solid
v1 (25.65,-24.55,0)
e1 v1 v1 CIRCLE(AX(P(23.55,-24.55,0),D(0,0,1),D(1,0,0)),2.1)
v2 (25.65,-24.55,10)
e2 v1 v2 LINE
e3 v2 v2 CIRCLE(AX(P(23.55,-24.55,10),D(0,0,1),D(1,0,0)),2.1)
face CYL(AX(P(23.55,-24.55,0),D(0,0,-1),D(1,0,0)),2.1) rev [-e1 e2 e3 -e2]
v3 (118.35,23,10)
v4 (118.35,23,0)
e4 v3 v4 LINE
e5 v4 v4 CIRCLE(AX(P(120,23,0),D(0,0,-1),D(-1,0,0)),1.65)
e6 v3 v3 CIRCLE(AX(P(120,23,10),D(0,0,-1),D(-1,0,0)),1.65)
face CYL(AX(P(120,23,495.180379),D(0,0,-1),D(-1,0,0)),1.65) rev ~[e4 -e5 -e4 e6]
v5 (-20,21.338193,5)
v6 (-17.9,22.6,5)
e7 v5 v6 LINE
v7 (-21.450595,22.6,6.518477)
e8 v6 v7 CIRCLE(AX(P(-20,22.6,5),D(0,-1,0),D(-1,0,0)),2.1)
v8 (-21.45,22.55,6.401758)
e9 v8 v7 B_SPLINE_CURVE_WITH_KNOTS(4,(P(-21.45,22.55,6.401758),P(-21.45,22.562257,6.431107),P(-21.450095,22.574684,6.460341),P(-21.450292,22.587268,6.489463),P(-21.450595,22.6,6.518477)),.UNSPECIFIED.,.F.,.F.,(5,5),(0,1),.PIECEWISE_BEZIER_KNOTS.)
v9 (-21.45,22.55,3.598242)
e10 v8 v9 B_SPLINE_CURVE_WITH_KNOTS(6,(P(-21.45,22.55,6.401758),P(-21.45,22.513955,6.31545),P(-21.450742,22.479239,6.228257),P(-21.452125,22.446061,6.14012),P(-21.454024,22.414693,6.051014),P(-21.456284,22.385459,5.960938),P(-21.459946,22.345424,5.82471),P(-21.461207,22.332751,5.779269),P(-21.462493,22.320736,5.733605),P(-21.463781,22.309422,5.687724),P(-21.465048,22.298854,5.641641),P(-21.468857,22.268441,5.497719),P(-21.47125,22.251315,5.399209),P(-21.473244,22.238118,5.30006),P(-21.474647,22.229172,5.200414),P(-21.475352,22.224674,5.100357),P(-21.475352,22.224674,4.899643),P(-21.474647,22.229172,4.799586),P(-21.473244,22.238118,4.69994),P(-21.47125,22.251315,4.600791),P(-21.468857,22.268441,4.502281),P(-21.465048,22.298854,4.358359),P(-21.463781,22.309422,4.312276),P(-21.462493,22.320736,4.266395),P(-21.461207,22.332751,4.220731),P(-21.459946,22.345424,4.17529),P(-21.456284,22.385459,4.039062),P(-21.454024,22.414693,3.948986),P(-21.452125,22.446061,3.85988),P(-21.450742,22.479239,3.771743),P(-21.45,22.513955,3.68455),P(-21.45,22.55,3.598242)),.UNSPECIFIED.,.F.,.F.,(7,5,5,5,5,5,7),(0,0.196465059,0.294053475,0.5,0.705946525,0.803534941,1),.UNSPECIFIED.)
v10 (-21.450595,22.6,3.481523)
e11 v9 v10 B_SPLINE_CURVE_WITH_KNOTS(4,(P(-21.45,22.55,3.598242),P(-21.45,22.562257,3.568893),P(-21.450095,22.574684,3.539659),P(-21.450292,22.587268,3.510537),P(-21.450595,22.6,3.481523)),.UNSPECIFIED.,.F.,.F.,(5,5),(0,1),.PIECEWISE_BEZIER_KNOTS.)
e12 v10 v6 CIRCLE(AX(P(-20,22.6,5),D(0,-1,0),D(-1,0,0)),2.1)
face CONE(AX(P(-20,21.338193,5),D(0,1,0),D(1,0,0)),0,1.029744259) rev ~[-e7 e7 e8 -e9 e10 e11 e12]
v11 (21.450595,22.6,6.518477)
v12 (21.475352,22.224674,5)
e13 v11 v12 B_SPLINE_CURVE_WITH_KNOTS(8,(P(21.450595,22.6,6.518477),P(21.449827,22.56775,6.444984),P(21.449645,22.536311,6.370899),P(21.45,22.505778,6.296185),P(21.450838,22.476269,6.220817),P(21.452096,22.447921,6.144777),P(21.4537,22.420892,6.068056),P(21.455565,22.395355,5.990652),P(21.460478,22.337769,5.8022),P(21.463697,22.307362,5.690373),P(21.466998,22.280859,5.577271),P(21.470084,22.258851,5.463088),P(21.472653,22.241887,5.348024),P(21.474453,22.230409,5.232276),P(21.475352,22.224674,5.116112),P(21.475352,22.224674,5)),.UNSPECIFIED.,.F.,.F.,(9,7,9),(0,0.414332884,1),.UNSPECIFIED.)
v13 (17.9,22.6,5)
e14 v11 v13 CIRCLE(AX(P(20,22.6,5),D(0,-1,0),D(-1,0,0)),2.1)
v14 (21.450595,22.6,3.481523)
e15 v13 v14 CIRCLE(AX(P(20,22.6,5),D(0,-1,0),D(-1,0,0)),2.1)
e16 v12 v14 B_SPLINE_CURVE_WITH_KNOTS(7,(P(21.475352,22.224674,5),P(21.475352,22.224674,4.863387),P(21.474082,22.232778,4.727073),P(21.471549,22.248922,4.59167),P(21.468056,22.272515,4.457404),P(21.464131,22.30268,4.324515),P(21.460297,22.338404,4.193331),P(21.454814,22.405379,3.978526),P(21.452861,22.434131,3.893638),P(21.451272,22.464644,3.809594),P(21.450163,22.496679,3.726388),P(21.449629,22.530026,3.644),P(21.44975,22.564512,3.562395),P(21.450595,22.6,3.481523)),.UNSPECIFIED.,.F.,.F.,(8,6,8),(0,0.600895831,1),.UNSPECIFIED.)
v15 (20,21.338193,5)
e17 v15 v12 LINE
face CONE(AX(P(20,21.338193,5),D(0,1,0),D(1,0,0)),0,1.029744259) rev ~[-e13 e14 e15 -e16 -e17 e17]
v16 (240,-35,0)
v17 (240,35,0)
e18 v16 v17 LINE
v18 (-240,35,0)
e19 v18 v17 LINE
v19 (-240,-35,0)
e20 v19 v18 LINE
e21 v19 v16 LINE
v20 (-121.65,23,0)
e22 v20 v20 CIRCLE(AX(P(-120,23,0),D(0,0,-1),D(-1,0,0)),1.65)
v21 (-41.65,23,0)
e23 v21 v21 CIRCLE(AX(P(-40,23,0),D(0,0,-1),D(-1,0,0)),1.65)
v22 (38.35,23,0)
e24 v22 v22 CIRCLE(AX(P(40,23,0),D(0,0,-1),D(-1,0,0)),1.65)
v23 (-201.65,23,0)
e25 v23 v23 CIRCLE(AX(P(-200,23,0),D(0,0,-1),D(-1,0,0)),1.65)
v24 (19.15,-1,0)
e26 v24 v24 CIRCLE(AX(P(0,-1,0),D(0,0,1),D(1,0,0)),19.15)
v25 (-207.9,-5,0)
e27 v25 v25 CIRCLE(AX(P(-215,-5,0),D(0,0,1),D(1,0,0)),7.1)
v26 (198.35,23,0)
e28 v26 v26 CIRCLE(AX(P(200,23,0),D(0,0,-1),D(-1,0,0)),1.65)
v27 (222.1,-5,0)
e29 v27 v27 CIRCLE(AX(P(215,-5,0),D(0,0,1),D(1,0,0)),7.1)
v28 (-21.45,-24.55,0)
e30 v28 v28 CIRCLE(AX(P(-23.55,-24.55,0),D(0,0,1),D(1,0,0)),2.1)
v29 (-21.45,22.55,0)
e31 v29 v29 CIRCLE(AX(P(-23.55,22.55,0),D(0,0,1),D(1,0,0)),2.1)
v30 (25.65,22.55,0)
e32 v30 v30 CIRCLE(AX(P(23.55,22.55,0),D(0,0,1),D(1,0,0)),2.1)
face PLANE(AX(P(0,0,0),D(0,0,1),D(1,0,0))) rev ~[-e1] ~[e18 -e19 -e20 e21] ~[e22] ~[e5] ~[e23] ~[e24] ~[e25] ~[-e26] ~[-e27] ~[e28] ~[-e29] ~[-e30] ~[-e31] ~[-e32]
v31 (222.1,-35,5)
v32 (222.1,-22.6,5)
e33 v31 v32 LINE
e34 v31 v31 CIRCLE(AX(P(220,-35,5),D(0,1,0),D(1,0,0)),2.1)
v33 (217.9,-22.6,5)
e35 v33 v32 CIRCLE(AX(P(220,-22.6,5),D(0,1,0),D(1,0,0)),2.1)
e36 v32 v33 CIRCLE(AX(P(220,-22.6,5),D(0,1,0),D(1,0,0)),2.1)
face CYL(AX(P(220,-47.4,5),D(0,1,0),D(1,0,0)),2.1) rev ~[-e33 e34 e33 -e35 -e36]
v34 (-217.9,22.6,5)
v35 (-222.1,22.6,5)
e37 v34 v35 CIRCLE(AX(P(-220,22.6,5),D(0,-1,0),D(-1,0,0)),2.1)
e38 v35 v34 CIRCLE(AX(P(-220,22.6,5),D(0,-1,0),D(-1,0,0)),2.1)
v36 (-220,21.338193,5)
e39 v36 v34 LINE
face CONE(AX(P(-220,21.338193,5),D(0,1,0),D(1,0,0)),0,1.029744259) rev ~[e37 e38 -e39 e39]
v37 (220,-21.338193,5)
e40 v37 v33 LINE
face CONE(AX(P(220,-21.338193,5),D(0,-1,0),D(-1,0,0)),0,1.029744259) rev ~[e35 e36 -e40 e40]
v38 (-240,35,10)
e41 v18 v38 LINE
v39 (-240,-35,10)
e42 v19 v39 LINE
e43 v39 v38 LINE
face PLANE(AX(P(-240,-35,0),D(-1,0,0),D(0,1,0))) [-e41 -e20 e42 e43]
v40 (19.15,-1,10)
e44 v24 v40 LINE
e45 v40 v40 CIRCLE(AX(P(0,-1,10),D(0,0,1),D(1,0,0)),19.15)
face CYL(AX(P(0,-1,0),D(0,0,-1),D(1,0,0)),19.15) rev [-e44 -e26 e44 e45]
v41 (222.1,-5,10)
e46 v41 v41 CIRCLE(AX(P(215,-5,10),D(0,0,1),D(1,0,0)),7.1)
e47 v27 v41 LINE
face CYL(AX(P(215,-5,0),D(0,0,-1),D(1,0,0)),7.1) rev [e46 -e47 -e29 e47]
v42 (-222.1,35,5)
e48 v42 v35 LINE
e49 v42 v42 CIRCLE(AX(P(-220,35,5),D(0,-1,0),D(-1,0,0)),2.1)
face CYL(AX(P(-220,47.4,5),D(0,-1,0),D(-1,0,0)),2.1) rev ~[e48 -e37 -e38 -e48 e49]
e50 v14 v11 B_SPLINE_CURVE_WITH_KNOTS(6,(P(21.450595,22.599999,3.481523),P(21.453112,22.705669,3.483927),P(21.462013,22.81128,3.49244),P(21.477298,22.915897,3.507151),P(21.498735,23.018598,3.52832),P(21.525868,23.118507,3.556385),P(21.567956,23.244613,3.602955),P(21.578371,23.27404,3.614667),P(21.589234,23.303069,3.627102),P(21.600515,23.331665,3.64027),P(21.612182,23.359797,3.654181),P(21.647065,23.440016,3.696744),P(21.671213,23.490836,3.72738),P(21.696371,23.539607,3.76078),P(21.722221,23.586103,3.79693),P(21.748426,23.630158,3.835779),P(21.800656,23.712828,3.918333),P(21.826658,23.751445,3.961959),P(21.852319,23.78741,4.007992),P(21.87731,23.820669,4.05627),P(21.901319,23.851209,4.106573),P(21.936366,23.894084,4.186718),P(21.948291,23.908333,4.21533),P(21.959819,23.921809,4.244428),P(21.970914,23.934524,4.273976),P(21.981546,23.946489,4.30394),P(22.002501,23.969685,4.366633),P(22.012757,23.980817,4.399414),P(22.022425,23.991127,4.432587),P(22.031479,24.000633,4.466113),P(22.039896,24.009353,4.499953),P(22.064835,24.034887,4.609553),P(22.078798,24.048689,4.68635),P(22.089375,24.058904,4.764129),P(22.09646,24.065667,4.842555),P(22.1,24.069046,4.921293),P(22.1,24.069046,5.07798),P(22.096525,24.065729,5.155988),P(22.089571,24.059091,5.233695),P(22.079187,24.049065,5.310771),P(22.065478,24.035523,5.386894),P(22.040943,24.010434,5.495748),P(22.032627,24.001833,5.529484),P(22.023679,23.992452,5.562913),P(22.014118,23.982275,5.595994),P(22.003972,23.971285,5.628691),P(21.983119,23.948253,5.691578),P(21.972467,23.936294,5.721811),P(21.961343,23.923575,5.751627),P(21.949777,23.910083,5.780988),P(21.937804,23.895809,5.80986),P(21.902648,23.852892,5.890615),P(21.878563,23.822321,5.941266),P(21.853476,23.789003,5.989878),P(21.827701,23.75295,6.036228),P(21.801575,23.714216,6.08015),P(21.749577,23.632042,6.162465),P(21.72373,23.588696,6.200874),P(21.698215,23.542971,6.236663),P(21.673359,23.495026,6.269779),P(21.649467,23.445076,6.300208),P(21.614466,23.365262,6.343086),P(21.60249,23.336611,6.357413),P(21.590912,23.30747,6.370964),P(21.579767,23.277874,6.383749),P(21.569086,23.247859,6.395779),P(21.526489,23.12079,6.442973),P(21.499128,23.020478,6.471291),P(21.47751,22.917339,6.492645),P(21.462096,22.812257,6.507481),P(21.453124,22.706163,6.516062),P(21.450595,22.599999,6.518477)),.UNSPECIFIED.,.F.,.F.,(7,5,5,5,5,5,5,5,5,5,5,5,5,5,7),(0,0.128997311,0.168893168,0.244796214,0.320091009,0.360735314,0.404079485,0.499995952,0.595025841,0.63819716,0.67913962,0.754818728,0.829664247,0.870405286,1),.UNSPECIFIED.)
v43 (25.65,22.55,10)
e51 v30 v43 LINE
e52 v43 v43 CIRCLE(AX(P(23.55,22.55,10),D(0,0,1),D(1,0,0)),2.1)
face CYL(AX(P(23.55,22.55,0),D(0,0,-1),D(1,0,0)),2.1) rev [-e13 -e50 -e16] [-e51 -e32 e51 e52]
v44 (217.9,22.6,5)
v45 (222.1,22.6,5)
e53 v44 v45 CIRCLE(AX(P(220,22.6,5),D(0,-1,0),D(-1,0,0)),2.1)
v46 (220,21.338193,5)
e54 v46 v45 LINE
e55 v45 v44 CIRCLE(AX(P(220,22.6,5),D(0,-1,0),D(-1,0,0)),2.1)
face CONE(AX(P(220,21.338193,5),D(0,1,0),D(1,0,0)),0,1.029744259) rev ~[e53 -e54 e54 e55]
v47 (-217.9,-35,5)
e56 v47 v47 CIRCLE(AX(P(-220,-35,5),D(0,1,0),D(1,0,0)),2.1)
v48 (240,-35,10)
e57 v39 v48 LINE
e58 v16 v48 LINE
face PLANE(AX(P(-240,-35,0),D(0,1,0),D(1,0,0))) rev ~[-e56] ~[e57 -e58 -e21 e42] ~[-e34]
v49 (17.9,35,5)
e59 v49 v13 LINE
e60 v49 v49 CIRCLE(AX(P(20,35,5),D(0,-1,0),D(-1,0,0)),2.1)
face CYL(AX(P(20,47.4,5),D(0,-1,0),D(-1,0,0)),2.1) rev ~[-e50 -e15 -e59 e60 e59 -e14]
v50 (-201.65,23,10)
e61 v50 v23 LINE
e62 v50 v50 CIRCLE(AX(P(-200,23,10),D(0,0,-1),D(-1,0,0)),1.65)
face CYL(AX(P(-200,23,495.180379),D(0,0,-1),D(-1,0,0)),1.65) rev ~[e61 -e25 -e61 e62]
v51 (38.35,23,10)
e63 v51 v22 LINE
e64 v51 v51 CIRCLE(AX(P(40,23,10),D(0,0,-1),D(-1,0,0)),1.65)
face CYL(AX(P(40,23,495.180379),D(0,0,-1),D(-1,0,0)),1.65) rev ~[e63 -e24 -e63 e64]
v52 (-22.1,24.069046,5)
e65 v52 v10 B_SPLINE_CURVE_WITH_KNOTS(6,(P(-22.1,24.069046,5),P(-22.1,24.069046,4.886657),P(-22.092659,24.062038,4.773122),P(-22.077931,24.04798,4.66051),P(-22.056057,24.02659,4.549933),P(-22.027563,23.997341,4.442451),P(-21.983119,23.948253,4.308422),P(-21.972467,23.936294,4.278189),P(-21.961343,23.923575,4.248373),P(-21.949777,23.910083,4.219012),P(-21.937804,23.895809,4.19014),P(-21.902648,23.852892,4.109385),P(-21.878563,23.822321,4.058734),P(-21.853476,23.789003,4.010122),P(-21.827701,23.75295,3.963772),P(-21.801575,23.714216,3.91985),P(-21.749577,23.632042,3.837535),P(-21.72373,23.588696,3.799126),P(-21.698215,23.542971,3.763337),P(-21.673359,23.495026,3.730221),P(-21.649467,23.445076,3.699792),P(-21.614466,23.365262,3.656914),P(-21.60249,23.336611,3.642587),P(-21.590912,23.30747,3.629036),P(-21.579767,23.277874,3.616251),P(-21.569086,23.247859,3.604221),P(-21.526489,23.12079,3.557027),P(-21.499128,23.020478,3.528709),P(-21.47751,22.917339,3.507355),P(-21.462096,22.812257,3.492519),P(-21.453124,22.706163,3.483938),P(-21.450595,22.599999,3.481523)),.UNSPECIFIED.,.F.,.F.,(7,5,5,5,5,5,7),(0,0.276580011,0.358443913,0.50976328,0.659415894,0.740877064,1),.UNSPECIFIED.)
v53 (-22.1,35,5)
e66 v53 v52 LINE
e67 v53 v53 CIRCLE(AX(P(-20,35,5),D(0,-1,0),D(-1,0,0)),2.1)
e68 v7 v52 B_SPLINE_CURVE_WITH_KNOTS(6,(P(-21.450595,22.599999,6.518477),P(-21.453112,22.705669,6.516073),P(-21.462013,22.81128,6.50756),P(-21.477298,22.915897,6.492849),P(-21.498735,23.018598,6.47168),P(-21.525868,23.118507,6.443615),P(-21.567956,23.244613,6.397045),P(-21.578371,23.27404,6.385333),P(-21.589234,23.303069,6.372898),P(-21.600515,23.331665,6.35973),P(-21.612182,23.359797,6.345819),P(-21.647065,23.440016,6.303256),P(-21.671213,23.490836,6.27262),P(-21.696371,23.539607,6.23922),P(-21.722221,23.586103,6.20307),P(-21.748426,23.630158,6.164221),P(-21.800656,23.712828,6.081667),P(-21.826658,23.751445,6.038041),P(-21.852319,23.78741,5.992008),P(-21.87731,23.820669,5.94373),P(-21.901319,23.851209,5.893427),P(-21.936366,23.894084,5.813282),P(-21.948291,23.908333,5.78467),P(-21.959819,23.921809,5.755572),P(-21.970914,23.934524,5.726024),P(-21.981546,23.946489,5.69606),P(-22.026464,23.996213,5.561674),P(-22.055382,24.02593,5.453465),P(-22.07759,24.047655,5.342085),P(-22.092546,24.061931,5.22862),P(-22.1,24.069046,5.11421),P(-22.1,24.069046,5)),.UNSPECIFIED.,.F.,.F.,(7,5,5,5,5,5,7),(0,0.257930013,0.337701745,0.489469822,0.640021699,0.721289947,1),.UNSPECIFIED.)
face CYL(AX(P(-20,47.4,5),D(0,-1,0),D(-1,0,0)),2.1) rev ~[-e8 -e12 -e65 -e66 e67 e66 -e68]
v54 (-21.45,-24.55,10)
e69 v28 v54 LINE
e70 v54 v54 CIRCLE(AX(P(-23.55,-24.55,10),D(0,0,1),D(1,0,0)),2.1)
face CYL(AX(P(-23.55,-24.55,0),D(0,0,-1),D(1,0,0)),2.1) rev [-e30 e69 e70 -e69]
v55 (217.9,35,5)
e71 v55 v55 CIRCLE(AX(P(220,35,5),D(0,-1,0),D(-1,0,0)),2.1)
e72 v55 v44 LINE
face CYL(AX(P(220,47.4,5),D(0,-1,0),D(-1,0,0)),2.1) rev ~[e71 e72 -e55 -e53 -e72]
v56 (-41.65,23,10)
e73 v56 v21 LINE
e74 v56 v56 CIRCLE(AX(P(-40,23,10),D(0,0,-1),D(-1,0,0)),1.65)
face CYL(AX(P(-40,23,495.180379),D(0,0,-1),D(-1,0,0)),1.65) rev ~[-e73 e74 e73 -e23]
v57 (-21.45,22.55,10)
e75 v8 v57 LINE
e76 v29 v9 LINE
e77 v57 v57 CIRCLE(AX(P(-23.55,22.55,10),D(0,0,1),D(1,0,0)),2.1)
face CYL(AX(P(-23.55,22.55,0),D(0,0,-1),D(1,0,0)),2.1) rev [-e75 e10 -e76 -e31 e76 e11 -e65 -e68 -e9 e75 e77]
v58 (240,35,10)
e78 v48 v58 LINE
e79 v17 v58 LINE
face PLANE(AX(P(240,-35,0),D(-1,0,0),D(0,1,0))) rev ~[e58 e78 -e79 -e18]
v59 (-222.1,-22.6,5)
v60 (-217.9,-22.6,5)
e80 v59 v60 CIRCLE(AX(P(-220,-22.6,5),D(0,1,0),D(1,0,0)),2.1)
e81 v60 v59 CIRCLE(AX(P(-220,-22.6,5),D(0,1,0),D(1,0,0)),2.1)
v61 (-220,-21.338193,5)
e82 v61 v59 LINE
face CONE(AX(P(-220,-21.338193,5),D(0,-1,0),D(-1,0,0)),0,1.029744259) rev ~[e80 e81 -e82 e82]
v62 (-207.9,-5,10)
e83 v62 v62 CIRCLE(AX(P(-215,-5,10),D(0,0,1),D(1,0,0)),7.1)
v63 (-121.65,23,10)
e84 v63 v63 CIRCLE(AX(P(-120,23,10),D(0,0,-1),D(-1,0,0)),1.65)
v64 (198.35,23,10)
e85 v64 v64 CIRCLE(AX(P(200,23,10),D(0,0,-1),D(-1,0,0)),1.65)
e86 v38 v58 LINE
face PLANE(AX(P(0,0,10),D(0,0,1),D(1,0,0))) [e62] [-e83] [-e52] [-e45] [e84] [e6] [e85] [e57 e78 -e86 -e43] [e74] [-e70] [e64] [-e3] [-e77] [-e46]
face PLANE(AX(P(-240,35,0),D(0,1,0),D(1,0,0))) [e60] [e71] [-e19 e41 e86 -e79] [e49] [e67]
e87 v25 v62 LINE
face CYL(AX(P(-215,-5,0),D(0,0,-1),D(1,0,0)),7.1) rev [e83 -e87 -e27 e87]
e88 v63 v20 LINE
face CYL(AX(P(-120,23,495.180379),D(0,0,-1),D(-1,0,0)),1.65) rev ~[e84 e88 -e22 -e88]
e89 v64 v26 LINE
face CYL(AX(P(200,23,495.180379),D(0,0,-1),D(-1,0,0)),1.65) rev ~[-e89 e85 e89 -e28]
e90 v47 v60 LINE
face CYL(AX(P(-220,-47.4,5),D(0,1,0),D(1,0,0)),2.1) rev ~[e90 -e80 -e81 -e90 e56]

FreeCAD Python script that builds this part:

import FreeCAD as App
import Part
import Sketcher

doc = App.newDocument("Part")
body = doc.addObject("PartDesign::Body", "Body")

# Sketch on XY plane
sketch1 = body.newObject("Sketcher::SketchObject", "Sketch")
sketch1.AttachmentSupport = (doc.getObject("XY_Plane"), [""])
sketch1.MapMode = "FlatFace"
sketch1.addGeometry([
    Part.LineSegment(App.Vector(-240, 35, 0), App.Vector(-240, -35, 0)),  # 0
    Part.LineSegment(App.Vector(-240, -35, 0), App.Vector(240, -35, 0)),  # 1
    Part.LineSegment(App.Vector(240, -35, 0), App.Vector(240, 35, 0)),  # 2
    Part.LineSegment(App.Vector(240, 35, 0), App.Vector(-240, 35, 0)),  # 3
    Part.Circle(App.Vector(-23.6, -24.6, 0), App.Vector(0, 0, 1), 2.1),  # 4
    Part.Circle(App.Vector(-215, -5, 0), App.Vector(0, 0, 1), 7.1),  # 5
    Part.Circle(App.Vector(23.6, -24.6, 0), App.Vector(0, 0, 1), 2.1),  # 6
    Part.Circle(App.Vector(215, -5, 0), App.Vector(0, 0, 1), 7.1),  # 7
    Part.Circle(App.Vector(-23.6, 22.6, 0), App.Vector(0, 0, 1), 2.1),  # 8
    Part.Circle(App.Vector(0, -1, 0), App.Vector(0, 0, 1), 19.1),  # 9
    Part.Circle(App.Vector(23.6, 22.6, 0), App.Vector(0, 0, 1), 2.1),  # 10
], False)
sketch1.addConstraint([
    Sketcher.Constraint("Coincident", 0, 2, 1, 1),
    Sketcher.Constraint("Coincident", 1, 2, 2, 1),
    Sketcher.Constraint("Coincident", 2, 2, 3, 1),
    Sketcher.Constraint("Coincident", 3, 2, 0, 1),
    Sketcher.Constraint("Vertical", 0),
    Sketcher.Constraint("Horizontal", 1),
    Sketcher.Constraint("Vertical", 2),
    Sketcher.Constraint("Horizontal", 3),
    Sketcher.Constraint("Equal", 4, 6),
    Sketcher.Constraint("Equal", 5, 7),
    Sketcher.Constraint("Equal", 6, 8),
    Sketcher.Constraint("Equal", 8, 10),
    Sketcher.Constraint("Symmetric", 0, 2, 2, 2, -1, 1),
    Sketcher.Constraint("Symmetric", 4, 3, 6, 3, -2),
    Sketcher.Constraint("Symmetric", 5, 3, 7, 3, -2),
    Sketcher.Constraint("Symmetric", 8, 3, 10, 3, -2),
    Sketcher.Constraint("PointOnObject", 9, 3, -2),
    Sketcher.Constraint("Vertical", 4, 3, 8, 3),
    Sketcher.Constraint("Diameter", 4, 4.2),
    Sketcher.Constraint("Diameter", 5, 14.2),
    Sketcher.Constraint("Diameter", 9, 38.3),
    Sketcher.Constraint("DistanceX", 1, 1, 1, 2, 480.0),
    Sketcher.Constraint("DistanceY", 0, 2, 0, 1, 70.0),
    Sketcher.Constraint("DistanceX", 5, 3, -1, 1, 215.0),
    Sketcher.Constraint("DistanceY", 5, 3, -1, 1, 5.0),
    Sketcher.Constraint("DistanceY", 9, 3, -1, 1, 1.0),
    Sketcher.Constraint("DistanceX", 4, 3, 6, 3, 47.1),
    Sketcher.Constraint("DistanceY", 4, 3, 8, 3, 47.1),
    Sketcher.Constraint("DistanceY", 4, 3, -1, 1, 24.55),
])
pad1 = body.newObject("PartDesign::Pad", "Pad")
pad1.Profile = sketch1
pad1.Length = 10

# Sketch on XZ plane
sketch2 = body.newObject("Sketcher::SketchObject", "Sketch001")
sketch2.AttachmentSupport = (doc.getObject("XZ_Plane"), [""])
sketch2.MapMode = "FlatFace"
sketch2.AttachmentOffset = App.Placement(App.Vector(0, 0, -35), App.Rotation())
sketch2.addGeometry([
    Part.Circle(App.Vector(220, 5, 0), App.Vector(0, 0, 1), 2.1),
    Part.Circle(App.Vector(-220, 5, 0), App.Vector(0, 0, 1), 2.1),
    Part.Circle(App.Vector(-20, 5, 0), App.Vector(0, 0, 1), 2.1),
    Part.Circle(App.Vector(20, 5, 0), App.Vector(0, 0, 1), 2.1),
], False)
sketch2.addConstraint([
    Sketcher.Constraint("Equal", 0, 1),
    Sketcher.Constraint("Equal", 1, 2),
    Sketcher.Constraint("Equal", 2, 3),
    Sketcher.Constraint("Symmetric", 0, 3, 1, 3, -2),
    Sketcher.Constraint("Symmetric", 2, 3, 3, 3, -2),
    Sketcher.Constraint("Horizontal", 1, 3, 2, 3),
    Sketcher.Constraint("Diameter", 0, 4.2),
    Sketcher.Constraint("DistanceX", -1, 1, 0, 3, 220.0),
    Sketcher.Constraint("DistanceY", -1, 1, 0, 3, 5.0),
    Sketcher.Constraint("DistanceX", 2, 3, -1, 1, 20.0),
])
doc.recompute()
hole = body.newObject("PartDesign::Hole", "Hole")
hole.Profile = sketch2
hole.ThreadType = "None"
hole.Diameter = 4.2
hole.DepthType = "Dimension"
hole.Depth = 12.4
hole.DrillPoint = "Angled"
hole.DrillPointAngle = 118
hole.Reversed = True

# Sketch on XZ plane
sketch3 = body.newObject("Sketcher::SketchObject", "Sketch002")
sketch3.AttachmentSupport = (doc.getObject("XZ_Plane"), [""])
sketch3.MapMode = "FlatFace"
sketch3.AttachmentOffset = App.Placement(App.Vector(0, 0, 35), App.Rotation())
sketch3.addGeometry([
    Part.Circle(App.Vector(220, 5, 0), App.Vector(0, 0, 1), 2.1),
    Part.Circle(App.Vector(-220, 5, 0), App.Vector(0, 0, 1), 2.1),
], False)
sketch3.addConstraint([
    Sketcher.Constraint("Equal", 0, 1),
    Sketcher.Constraint("Symmetric", 0, 3, 1, 3, -2),
    Sketcher.Constraint("Diameter", 0, 4.2),
    Sketcher.Constraint("DistanceX", -1, 1, 0, 3, 220.0),
    Sketcher.Constraint("DistanceY", -1, 1, 0, 3, 5.0),
])
doc.recompute()
hole2 = body.newObject("PartDesign::Hole", "Hole001")
hole2.Profile = sketch3
hole2.ThreadType = "None"
hole2.Diameter = 4.2
hole2.DepthType = "Dimension"
hole2.Depth = 12.4
hole2.DrillPoint = "Angled"
hole2.DrillPointAngle = 118

# Sketch on XY plane
sketch4 = body.newObject("Sketcher::SketchObject", "Sketch003")
sketch4.AttachmentSupport = (doc.getObject("XY_Plane"), [""])
sketch4.MapMode = "FlatFace"
sketch4.AttachmentOffset = App.Placement(App.Vector(0, 0, 10), App.Rotation())
sketch4.addGeometry([
    Part.Circle(App.Vector(-200, 23, 0), App.Vector(0, 0, 1), 1.6),  # 0
    Part.Circle(App.Vector(-120, 23, 0), App.Vector(0, 0, 1), 1.6),  # 1
    Part.Circle(App.Vector(-40, 23, 0), App.Vector(0, 0, 1), 1.6),  # 2
    Part.Circle(App.Vector(40, 23, 0), App.Vector(0, 0, 1), 1.6),  # 3
    Part.Circle(App.Vector(120, 23, 0), App.Vector(0, 0, 1), 1.6),  # 4
    Part.Circle(App.Vector(200, 23, 0), App.Vector(0, 0, 1), 1.6),  # 5
], False)
sketch4.addConstraint([
    Sketcher.Constraint("Equal", 0, 1),
    Sketcher.Constraint("Equal", 1, 2),
    Sketcher.Constraint("Equal", 2, 3),
    Sketcher.Constraint("Equal", 3, 4),
    Sketcher.Constraint("Equal", 4, 5),
    Sketcher.Constraint("Symmetric", 2, 3, 3, 3, -2),
    Sketcher.Constraint("Symmetric", 1, 3, 4, 3, -2),
    Sketcher.Constraint("Symmetric", 0, 3, 5, 3, -2),
    Sketcher.Constraint("Horizontal", 0, 3, 1, 3),
    Sketcher.Constraint("Horizontal", 1, 3, 2, 3),
    Sketcher.Constraint("Diameter", 0, 3.3),
    Sketcher.Constraint("DistanceX", 0, 3, -1, 1, 200.0),
    Sketcher.Constraint("DistanceY", -1, 1, 0, 3, 23.0),
    Sketcher.Constraint("DistanceX", 1, 3, -1, 1, 120.0),
    Sketcher.Constraint("DistanceX", 2, 3, -1, 1, 40.0),
])
doc.recompute()
hole3 = body.newObject("PartDesign::Hole", "Hole002")
hole3.Profile = sketch4
hole3.ThreadType = "None"
hole3.Diameter = 3.3
hole3.DepthType = "ThroughAll"

doc.recompute()
